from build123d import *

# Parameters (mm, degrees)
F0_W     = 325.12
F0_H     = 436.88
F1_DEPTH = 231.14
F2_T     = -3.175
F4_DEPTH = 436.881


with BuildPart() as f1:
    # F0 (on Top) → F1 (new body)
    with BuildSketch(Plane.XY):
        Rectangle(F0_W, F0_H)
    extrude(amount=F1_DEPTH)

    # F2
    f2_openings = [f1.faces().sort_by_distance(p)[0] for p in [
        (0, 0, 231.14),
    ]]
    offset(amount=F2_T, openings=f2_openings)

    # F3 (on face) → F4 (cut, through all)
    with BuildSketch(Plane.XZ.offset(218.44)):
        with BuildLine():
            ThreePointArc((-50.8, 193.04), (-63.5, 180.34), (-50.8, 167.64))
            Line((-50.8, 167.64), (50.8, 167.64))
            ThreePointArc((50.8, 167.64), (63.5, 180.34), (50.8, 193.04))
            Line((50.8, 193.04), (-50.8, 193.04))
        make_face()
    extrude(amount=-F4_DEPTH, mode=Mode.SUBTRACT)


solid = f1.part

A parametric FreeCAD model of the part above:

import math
import FreeCAD as App
import Part
import Sketcher
Q = App.Units.Quantity


def faces_at(feature, points):
    """Names of the faces that lie closest to the given points."""
    faces = feature.Shape.Faces
    near = lambda p: min(range(len(faces)), key=lambda i: faces[i].distToShape(Part.Vertex(*p))[0])
    return sorted({f"Face{near(p) + 1}" for p in points})

doc = App.newDocument("Part")
body = doc.addObject("PartDesign::Body", "Body")

sketch1 = doc.addObject("Sketcher::SketchObject", "Sketch")
body.addObject(sketch1)
sketch1.AttachmentSupport = (doc.XY_Plane, [""])
sketch1.MapMode = "FlatFace"
sketch1.addGeometry([
    Part.LineSegment(App.Vector(-162.56, 218.44, 0), App.Vector(-162.56, -218.44, 0)),
    Part.LineSegment(App.Vector(-162.56, -218.44, 0), App.Vector(162.56, -218.44, 0)),
    Part.LineSegment(App.Vector(162.56, -218.44, 0), App.Vector(162.56, 218.44, 0)),
    Part.LineSegment(App.Vector(162.56, 218.44, 0), App.Vector(-162.56, 218.44, 0)),
], False)
sketch1.addConstraint([
    Sketcher.Constraint("Coincident", 0, 2, 1, 1),
    Sketcher.Constraint("Coincident", 1, 2, 2, 1),
    Sketcher.Constraint("Coincident", 2, 2, 3, 1),
    Sketcher.Constraint("Coincident", 3, 2, 0, 1),
    Sketcher.Constraint("Vertical", 0),
    Sketcher.Constraint("Horizontal", 1),
    Sketcher.Constraint("Vertical", 2),
    Sketcher.Constraint("Horizontal", 3),
    Sketcher.Constraint("Symmetric", 0, 2, 2, 2, -1, 1),
    Sketcher.Constraint("DistanceX", 1, 1, 1, 2, Q("12.8 in")),
    Sketcher.Constraint("DistanceY", 0, 2, 0, 1, Q("17.2 in")),
])
pad1 = doc.addObject("PartDesign::Pad", "Pad")
body.addObject(pad1)
pad1.Profile = sketch1
pad1.Length = Q("9.1 in")
doc.recompute()

thickness = doc.addObject("PartDesign::Thickness", "Thickness")
body.addObject(thickness)
thickness.Base = (pad1, faces_at(pad1, [(0, 0, 231.14)]))
thickness.Value = Q("0.125 in")
thickness.Reversed = True
thickness.Join = "Arc"

sketch2 = doc.addObject("Sketcher::SketchObject", "Sketch001")
body.addObject(sketch2)
sketch2.AttachmentSupport = (doc.XZ_Plane, [""])
sketch2.MapMode = "FlatFace"
sketch2.AttachmentOffset = App.Placement(App.Vector(0, 0, 8.6 * 25.4), App.Rotation())
sketch2.addGeometry([
    Part.ArcOfCircle(Part.Circle(App.Vector(-50.8, 180.34, 0), App.Vector(0, 0, 1), 12.7), math.radians(90), math.radians(270)),
    Part.LineSegment(App.Vector(-50.8, 167.64, 0), App.Vector(50.8, 167.64, 0)),
    Part.ArcOfCircle(Part.Circle(App.Vector(50.8, 180.34, 0), App.Vector(0, 0, 1), 12.7), math.radians(-90), math.radians(90)),
    Part.LineSegment(App.Vector(50.8, 193.04, 0), App.Vector(-50.8, 193.04, 0)),
], False)
sketch2.addConstraint([
    Sketcher.Constraint("Tangent", 0, 2, 1, 1),
    Sketcher.Constraint("Tangent", 1, 2, 2, 1),
    Sketcher.Constraint("Tangent", 2, 2, 3, 1),
    Sketcher.Constraint("Tangent", 3, 2, 0, 1),
    Sketcher.Constraint("Horizontal", 1),
    Sketcher.Constraint("Horizontal", 3),
    Sketcher.Constraint("Radius", 0, Q("0.5 in")),
    Sketcher.Constraint("DistanceX", 1, 1, 1, 2, Q("4 in")),
    Sketcher.Constraint("DistanceX", 0, 3, -1, 1, Q("2 in")),
    Sketcher.Constraint("DistanceY", -1, 1, 0, 3, Q("7.1 in")),
])
pocket1 = doc.addObject("PartDesign::Pocket", "Pocket")
body.addObject(pocket1)
pocket1.Profile = sketch2
pocket1.Type = "ThroughAll"

doc.recompute()
